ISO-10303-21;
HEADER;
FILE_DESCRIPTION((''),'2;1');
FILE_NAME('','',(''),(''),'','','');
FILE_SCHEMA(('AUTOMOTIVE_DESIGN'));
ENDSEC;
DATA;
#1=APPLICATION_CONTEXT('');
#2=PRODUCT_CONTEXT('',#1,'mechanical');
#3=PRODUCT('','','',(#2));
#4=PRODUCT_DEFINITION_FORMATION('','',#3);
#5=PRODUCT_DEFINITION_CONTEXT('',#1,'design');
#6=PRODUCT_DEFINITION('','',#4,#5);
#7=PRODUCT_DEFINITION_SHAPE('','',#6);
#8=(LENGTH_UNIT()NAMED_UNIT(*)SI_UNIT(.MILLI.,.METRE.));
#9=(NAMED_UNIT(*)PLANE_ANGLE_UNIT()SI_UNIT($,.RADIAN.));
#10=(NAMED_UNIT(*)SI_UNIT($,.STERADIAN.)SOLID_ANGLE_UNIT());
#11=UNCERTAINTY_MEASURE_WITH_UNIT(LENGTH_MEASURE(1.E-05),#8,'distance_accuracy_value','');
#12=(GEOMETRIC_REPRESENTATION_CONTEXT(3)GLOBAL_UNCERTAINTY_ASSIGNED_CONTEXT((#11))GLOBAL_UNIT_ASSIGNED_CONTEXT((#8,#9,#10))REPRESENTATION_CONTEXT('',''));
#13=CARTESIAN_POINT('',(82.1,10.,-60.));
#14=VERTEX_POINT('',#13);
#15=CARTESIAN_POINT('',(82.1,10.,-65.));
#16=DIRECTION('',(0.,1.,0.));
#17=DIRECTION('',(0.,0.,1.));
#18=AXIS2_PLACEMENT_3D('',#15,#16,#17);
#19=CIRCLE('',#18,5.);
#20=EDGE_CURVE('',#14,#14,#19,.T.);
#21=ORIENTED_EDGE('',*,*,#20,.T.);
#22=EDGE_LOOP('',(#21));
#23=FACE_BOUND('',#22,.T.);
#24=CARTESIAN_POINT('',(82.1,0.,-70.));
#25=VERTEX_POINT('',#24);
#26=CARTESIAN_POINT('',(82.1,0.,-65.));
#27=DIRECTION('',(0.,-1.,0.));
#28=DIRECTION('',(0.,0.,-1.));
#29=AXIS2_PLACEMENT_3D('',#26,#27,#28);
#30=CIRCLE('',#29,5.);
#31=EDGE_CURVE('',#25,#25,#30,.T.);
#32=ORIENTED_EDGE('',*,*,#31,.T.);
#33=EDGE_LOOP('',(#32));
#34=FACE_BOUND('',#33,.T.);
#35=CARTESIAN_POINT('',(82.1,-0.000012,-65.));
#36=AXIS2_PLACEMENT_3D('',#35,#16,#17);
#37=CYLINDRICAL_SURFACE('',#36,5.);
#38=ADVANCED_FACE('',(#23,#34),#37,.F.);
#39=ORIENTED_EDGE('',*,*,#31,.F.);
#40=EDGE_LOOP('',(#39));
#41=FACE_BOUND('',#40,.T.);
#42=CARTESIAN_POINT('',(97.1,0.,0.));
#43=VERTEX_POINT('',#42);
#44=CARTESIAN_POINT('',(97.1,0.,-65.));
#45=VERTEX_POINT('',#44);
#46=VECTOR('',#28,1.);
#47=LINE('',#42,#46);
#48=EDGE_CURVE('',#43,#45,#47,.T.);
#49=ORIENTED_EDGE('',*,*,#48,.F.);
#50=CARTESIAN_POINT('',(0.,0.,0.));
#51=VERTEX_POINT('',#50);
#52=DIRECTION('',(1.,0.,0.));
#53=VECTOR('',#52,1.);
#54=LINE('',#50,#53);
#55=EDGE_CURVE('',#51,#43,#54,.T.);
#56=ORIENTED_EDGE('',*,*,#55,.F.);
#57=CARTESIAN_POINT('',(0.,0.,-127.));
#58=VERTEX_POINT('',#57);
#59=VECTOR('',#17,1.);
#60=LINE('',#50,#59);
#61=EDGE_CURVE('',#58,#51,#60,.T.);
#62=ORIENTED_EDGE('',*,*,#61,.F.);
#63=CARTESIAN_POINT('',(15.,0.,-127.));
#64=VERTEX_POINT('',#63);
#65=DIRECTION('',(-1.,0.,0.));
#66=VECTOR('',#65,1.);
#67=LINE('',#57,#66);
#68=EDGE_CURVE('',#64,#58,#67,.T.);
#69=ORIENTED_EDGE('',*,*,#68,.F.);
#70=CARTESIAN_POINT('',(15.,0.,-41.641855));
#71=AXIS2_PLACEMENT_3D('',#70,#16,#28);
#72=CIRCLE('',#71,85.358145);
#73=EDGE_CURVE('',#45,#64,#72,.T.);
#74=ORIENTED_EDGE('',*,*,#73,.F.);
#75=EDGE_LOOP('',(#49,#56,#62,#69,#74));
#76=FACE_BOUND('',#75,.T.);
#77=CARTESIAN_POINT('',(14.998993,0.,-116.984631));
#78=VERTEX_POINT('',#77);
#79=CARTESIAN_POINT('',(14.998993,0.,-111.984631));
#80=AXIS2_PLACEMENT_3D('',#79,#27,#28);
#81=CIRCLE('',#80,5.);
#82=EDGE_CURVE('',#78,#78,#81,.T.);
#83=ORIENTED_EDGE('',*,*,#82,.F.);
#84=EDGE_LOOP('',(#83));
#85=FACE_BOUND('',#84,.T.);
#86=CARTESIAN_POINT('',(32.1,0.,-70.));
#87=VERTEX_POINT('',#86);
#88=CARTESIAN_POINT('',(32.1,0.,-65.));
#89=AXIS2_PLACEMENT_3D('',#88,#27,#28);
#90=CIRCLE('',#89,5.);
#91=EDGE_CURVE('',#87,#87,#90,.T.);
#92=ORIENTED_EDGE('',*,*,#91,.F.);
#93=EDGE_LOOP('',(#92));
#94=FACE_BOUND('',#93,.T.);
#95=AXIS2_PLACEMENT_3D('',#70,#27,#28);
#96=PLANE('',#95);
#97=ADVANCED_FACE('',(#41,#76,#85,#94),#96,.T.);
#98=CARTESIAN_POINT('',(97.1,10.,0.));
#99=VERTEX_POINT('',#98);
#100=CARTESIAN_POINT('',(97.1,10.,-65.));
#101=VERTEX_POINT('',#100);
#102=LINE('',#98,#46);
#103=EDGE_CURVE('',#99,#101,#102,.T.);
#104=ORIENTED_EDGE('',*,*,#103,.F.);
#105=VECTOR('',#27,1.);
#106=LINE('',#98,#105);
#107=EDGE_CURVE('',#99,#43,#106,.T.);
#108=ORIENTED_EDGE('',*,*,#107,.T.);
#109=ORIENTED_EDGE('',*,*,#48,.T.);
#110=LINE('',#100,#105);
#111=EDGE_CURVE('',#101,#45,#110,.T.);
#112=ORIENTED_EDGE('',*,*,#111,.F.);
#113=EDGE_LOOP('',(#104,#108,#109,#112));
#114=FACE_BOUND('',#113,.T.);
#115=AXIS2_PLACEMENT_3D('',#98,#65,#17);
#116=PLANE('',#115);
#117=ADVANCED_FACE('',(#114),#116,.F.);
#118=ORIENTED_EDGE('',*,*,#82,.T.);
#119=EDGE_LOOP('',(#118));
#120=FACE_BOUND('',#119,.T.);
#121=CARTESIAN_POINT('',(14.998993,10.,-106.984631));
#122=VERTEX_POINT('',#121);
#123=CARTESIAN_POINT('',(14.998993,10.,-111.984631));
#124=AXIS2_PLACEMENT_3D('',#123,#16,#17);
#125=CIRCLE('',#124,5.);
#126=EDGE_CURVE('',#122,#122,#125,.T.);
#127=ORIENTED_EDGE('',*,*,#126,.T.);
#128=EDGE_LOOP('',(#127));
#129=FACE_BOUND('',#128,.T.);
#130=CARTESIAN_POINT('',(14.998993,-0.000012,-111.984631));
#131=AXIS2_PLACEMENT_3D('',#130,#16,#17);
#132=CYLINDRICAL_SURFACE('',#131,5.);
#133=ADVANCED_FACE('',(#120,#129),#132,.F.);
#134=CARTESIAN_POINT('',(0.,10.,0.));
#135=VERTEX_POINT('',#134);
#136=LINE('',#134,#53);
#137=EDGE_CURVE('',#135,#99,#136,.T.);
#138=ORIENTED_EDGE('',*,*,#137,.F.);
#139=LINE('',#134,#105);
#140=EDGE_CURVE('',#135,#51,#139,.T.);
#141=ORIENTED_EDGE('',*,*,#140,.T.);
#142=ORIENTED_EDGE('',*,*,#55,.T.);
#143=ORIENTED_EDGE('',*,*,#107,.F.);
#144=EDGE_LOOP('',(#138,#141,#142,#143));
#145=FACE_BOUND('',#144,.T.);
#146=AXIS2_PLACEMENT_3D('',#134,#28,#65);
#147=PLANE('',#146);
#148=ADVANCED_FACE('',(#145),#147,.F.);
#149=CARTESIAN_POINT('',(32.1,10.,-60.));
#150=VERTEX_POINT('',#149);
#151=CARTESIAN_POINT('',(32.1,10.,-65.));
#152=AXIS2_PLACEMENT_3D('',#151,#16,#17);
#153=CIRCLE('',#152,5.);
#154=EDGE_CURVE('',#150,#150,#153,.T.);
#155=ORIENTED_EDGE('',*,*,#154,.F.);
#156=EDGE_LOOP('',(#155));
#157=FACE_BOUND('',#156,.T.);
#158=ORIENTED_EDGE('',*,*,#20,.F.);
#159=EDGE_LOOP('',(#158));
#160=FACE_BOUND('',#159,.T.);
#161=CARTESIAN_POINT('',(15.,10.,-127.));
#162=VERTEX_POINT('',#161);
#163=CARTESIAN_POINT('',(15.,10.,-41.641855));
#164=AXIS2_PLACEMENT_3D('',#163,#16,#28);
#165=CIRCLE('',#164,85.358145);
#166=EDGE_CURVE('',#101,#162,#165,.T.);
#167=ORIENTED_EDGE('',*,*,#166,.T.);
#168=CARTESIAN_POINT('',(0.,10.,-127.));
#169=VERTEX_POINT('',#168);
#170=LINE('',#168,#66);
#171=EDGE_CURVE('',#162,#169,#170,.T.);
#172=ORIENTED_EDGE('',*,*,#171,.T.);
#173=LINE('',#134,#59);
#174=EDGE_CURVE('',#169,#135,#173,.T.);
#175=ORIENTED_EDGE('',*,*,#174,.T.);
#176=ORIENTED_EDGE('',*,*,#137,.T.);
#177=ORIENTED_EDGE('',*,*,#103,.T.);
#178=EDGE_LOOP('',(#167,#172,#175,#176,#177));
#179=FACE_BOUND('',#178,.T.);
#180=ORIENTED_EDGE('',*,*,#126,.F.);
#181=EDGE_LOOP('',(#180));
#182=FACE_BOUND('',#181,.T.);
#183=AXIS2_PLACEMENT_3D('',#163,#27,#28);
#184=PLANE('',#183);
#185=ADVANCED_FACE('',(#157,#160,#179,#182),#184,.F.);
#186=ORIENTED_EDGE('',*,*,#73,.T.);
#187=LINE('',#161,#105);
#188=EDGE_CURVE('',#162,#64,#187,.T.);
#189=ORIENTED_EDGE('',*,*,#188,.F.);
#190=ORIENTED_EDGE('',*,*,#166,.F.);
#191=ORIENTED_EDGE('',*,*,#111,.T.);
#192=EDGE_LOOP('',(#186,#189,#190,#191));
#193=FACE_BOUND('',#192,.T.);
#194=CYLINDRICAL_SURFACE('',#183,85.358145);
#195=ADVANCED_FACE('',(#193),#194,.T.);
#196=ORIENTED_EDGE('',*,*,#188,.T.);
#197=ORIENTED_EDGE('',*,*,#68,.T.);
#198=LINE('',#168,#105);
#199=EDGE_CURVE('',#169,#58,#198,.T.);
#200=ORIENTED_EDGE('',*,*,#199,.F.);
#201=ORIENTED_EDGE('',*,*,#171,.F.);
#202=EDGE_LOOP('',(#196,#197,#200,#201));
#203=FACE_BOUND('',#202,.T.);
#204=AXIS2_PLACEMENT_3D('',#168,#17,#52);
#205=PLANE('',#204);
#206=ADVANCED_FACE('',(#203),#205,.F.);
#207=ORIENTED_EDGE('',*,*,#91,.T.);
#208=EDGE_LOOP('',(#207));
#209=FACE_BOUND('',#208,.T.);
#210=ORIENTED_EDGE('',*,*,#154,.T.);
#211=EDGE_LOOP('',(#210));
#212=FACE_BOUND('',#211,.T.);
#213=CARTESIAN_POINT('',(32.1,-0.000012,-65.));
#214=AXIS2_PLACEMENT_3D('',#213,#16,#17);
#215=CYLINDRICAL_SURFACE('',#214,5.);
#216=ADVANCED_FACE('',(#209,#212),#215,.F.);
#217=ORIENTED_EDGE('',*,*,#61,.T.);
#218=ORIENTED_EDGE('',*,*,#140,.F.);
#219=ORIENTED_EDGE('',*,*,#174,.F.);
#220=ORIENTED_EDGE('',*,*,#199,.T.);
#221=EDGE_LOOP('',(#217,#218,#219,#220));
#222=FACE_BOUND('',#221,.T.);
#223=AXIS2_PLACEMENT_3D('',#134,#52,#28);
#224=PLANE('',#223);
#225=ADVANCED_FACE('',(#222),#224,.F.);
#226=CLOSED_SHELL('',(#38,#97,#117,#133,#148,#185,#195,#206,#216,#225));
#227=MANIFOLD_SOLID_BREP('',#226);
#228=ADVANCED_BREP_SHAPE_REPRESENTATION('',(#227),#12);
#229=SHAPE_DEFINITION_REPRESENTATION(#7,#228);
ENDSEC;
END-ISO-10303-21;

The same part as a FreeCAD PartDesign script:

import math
import FreeCAD as App
import Part
import Sketcher

doc = App.newDocument("Part")
params = doc.addObject("Spreadsheet::Sheet", "Params")
for row, (alias, value) in enumerate([
    ("sketch1_width", "15 mm"),
    ("sketch1_height", "127 mm"),
    ("sketch1_height2", "65 mm"),
    ("sketch1_width2", "97.1 mm"),
    ("pad1_length", "10 mm"),
    ("sketch2_diameter", "10 mm"),
], start=1):
    params.set(f"A{row}", alias)
    params.set(f"B{row}", "=" + value)
    params.setAlias(f"B{row}", alias)

body = doc.addObject("PartDesign::Body", "Body")

# Sketch on XZ plane
sketch1 = body.newObject("Sketcher::SketchObject", "Sketch")
sketch1.AttachmentSupport = (doc.getObject("XZ_Plane"), [""])
sketch1.MapMode = "FlatFace"
sketch1.addGeometry([
    Part.LineSegment(App.Vector(0, -127, 0), App.Vector(0, 0, 0)),  # 0
    Part.LineSegment(App.Vector(0, 0, 0), App.Vector(97, 0, 0)),  # 1
    Part.LineSegment(App.Vector(97, 0, 0), App.Vector(97, -65, 0)),  # 2
    Part.ArcOfCircle(Part.Circle(App.Vector(15, -42, 0), App.Vector(0, 0, 1), 85), math.radians(-90), math.radians(-16)),  # 3
    Part.LineSegment(App.Vector(15, -127, 0), App.Vector(0, -127, 0)),  # 4
], False)
sketch1.addConstraint([
    Sketcher.Constraint("Coincident", 0, 2, 1, 1),
    Sketcher.Constraint("Coincident", 1, 2, 2, 1),
    Sketcher.Constraint("Coincident", 2, 2, 3, 2),
    Sketcher.Constraint("Tangent", 3, 1, 4, 1),
    Sketcher.Constraint("Coincident", 4, 2, 0, 1),
    Sketcher.Constraint("Vertical", 0),
    Sketcher.Constraint("Horizontal", 1),
    Sketcher.Constraint("Vertical", 2),
    Sketcher.Constraint("Horizontal", 4),
    Sketcher.Constraint("Coincident", 0, 2, -1, 1),
    Sketcher.Constraint("DistanceX", 4, 2, 4, 1, 15.0),
    Sketcher.Constraint("DistanceY", 0, 1, 0, 2, 127.0),
    Sketcher.Constraint("DistanceY", 2, 2, 2, 1, 65.0),
    Sketcher.Constraint("DistanceX", 1, 1, 1, 2, 97.1),
])
sketch1.setExpression("Constraints[10]", "Params.sketch1_width")
sketch1.setExpression("Constraints[11]", "Params.sketch1_height")
sketch1.setExpression("Constraints[12]", "Params.sketch1_height2")
sketch1.setExpression("Constraints[13]", "Params.sketch1_width2")
pad1 = body.newObject("PartDesign::Pad", "Pad")
pad1.Profile = sketch1
pad1.setExpression("Length", "Params.pad1_length")
pad1.Reversed = True

# Sketch on XZ plane
sketch2 = body.newObject("Sketcher::SketchObject", "Sketch001")
sketch2.AttachmentSupport = (doc.getObject("XZ_Plane"), [""])
sketch2.MapMode = "FlatFace"
sketch2.addGeometry([
    Part.Circle(App.Vector(15, -112, 0), App.Vector(0, 0, 1), 5),
    Part.Circle(App.Vector(82, -65, 0), App.Vector(0, 0, 1), 5),
    Part.Circle(App.Vector(32, -65, 0), App.Vector(0, 0, 1), 5),
], False)
sketch2.addConstraint([
    Sketcher.Constraint("Equal", 0, 1),
    Sketcher.Constraint("Equal", 1, 2),
    Sketcher.Constraint("Horizontal", 1, 3, 2, 3),
    Sketcher.Constraint("Diameter", 0, 10.0),
    Sketcher.Constraint("DistanceY", 1, 3, -1, 1, 65.0),
    Sketcher.Constraint("DistanceX", 2, 3, 1, 3, 50.0),
    Sketcher.Constraint("DistanceX", -1, 1, 1, 3, 82.1),
    Sketcher.Constraint("DistanceY", 0, 3, -1, 1, 111.984631),
    Sketcher.Constraint("DistanceX", -1, 1, 0, 3, 14.998993),
])
sketch2.setExpression("Constraints[3]", "Params.sketch2_diameter")
pocket1 = body.newObject("PartDesign::Pocket", "Pocket")
pocket1.Profile = sketch2
pocket1.Type = "ThroughAll"
pocket1.Midplane = True

doc.recompute()
